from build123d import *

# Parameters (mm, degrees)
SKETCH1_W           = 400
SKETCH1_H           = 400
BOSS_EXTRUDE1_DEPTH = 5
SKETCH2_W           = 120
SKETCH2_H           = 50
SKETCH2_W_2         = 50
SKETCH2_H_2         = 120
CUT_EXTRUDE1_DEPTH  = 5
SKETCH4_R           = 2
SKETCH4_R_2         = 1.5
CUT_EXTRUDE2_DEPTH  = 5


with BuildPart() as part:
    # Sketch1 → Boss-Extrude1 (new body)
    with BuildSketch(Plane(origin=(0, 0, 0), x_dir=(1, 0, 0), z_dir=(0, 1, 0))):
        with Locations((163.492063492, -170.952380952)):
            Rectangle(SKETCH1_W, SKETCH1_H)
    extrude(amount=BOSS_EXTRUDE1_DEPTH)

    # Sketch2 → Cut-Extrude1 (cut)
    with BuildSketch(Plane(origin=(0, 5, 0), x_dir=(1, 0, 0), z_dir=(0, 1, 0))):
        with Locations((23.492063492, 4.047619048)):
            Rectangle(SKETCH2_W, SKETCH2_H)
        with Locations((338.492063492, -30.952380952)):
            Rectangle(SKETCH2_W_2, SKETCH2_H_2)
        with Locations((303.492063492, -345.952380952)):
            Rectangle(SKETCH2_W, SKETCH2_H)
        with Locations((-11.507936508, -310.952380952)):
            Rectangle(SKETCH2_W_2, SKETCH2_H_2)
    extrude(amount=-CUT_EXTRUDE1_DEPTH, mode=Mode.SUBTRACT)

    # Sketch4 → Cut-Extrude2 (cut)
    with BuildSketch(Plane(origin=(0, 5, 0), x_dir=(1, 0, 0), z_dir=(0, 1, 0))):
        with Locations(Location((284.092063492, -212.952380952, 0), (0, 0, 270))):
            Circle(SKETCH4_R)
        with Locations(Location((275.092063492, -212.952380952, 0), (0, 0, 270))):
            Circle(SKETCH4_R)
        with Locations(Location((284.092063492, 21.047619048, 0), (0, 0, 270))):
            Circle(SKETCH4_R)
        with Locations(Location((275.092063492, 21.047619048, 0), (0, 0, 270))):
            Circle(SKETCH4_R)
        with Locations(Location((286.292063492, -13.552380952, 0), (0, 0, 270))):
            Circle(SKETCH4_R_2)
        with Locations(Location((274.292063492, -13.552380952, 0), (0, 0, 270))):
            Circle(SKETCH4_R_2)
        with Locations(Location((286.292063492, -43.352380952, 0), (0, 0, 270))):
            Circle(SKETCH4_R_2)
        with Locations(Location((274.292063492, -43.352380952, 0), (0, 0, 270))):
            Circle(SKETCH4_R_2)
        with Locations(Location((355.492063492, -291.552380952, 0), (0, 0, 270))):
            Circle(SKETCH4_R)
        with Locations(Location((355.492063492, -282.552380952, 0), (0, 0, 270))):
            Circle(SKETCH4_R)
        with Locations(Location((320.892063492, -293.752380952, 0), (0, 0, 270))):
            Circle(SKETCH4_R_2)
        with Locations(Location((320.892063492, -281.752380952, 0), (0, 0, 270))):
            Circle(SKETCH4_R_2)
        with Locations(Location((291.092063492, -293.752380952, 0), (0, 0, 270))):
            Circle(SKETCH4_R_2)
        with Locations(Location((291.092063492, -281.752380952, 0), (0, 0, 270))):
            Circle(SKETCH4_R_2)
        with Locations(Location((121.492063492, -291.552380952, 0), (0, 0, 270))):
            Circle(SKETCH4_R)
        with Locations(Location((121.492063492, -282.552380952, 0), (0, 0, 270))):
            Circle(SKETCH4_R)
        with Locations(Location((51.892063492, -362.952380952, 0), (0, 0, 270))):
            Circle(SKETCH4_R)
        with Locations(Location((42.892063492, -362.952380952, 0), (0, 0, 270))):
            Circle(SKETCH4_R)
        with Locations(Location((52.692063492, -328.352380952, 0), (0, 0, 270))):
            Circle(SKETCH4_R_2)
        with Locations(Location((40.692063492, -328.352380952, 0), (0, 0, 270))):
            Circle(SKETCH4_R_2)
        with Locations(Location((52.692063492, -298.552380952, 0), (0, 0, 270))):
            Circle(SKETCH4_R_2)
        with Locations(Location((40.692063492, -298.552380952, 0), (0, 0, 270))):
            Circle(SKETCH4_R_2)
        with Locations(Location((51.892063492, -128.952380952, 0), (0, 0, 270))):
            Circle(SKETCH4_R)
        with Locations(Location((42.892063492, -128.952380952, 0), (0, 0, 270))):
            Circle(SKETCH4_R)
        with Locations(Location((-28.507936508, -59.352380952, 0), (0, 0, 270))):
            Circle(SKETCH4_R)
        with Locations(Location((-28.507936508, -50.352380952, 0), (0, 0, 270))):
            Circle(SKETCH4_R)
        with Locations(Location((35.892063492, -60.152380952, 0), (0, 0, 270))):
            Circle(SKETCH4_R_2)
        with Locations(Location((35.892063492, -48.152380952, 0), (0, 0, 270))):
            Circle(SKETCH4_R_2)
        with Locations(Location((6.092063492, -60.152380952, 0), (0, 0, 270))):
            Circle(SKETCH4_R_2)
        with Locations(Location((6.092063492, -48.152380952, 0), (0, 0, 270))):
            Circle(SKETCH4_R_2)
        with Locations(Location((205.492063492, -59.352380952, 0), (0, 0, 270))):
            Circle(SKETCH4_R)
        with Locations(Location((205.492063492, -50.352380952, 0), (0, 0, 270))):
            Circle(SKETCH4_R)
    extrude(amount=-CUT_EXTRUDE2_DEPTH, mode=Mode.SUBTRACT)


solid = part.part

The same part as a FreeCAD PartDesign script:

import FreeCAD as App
import Part
import Sketcher

V = App.Vector
Q = App.Units.Quantity


def add_polygon(sketch, points):
    """Adds a closed chain of lines whose ends are joined by coincident constraints."""
    first, n = sketch.GeometryCount, len(points)
    for a, b in zip(points, points[1:] + points[:1]):
        sketch.addGeometry(Part.LineSegment(App.Vector(*a, 0), App.Vector(*b, 0)), False)
    for i in range(n):
        sketch.addConstraint(Sketcher.Constraint("Coincident", first + i, 2, first + (i + 1) % n, 1))

doc = App.newDocument("Part")
body = doc.addObject("PartDesign::Body", "Body")

sketch1 = body.newObject("Sketcher::SketchObject", "Sketch")
sketch1.AttachmentSupport = (doc.getObject("XZ_Plane"), [""])
sketch1.MapMode = "FlatFace"
add_polygon(sketch1, [(-37, -29), (-37, 371), (363, 371), (363, -29)])
sketch1.addConstraint([
    Sketcher.Constraint("Vertical", 0),
    Sketcher.Constraint("Horizontal", 1),
    Sketcher.Constraint("Vertical", 2),
    Sketcher.Constraint("Horizontal", 3),
    Sketcher.Constraint("Equal", 3, 0),
    Sketcher.Constraint("DistanceX", 1, 1, 1, 2, Q("400 mm")),
    Sketcher.Constraint("DistanceY", -1, 1, 0, 2, Q("370.952381 mm")),
    Sketcher.Constraint("DistanceX", 0, 2, -1, 1, Q("36.507937 mm")),
])
pad1 = body.newObject("PartDesign::Pad", "Pad")
pad1.Profile = sketch1
pad1.Length = 5
pad1.Reversed = True

sketch2 = body.newObject("Sketcher::SketchObject", "Sketch001")
sketch2.AttachmentSupport = (doc.getObject("XZ_Plane"), [""])
sketch2.MapMode = "FlatFace"
sketch2.AttachmentOffset = App.Placement(V(0, 0, -5), App.Rotation())
add_polygon(sketch2, [(-37, -29), (-37, 21), (83, 21), (83, -29)])
add_polygon(sketch2, [(313, -29), (313, 91), (363, 91), (363, -29)])
add_polygon(sketch2, [(243, 321), (243, 371), (363, 371), (363, 321)])
add_polygon(sketch2, [(-37, 251), (-37, 371), (13, 371), (13, 251)])
sketch2.addConstraint([
    Sketcher.Constraint("Vertical", 0),
    Sketcher.Constraint("Horizontal", 1),
    Sketcher.Constraint("Vertical", 2),
    Sketcher.Constraint("Horizontal", 3),
    Sketcher.Constraint("Vertical", 4),
    Sketcher.Constraint("Horizontal", 5),
    Sketcher.Constraint("Vertical", 6),
    Sketcher.Constraint("Horizontal", 7),
    Sketcher.Constraint("Vertical", 8),
    Sketcher.Constraint("Horizontal", 9),
    Sketcher.Constraint("Vertical", 10),
    Sketcher.Constraint("Horizontal", 11),
    Sketcher.Constraint("Vertical", 12),
    Sketcher.Constraint("Horizontal", 13),
    Sketcher.Constraint("Vertical", 14),
    Sketcher.Constraint("Horizontal", 15),
    Sketcher.Constraint("Horizontal", 3, 2, 6, 2),
    Sketcher.Constraint("Horizontal", 9, 2, 12, 2),
    Sketcher.Constraint("Vertical", 6, 2, 9, 2),
    Sketcher.Constraint("Vertical", 3, 2, 12, 2),
    Sketcher.Constraint("Equal", 3, 9),
    Sketcher.Constraint("Equal", 7, 13),
    Sketcher.Constraint("Equal", 15, 0),
    Sketcher.Constraint("Equal", 11, 4),
    Sketcher.Constraint("Equal", 2, 8),
    Sketcher.Constraint("Equal", 6, 12),
    Sketcher.Constraint("DistanceX", 1, 1, 1, 2, Q("120 mm")),
    Sketcher.Constraint("DistanceX", 5, 1, 5, 2, Q("50 mm")),
    Sketcher.Constraint("DistanceX", 1, 2, 4, 2, Q("230 mm")),
    Sketcher.Constraint("DistanceY", 4, 2, 8, 2, Q("280 mm")),
    Sketcher.Constraint("DistanceY", -1, 1, 0, 2, Q("20.952381 mm")),
    Sketcher.Constraint("DistanceX", 0, 2, -1, 1, Q("36.507937 mm")),
])
pocket1 = body.newObject("PartDesign::Pocket", "Pocket")
pocket1.Profile = sketch2
pocket1.Length = 5
pocket1.Reversed = True

sketch3 = body.newObject("Sketcher::SketchObject", "Sketch002")
sketch3.AttachmentSupport = (doc.getObject("XZ_Plane"), [""])
sketch3.MapMode = "FlatFace"
sketch3.AttachmentOffset = App.Placement(V(0, 0, -5), App.Rotation())
sketch3.addGeometry([
    Part.Circle(V(284.1, 213, 0), V(0, 0, 1), 2),
    Part.Circle(V(275.1, 213, 0), V(0, 0, 1), 2),
    Part.Circle(V(284.1, -21, 0), V(0, 0, 1), 2),
    Part.Circle(V(275.1, -21, 0), V(0, 0, 1), 2),
    Part.Circle(V(286.3, 13.6, 0), V(0, 0, 1), 1.5),
    Part.Circle(V(274.3, 13.6, 0), V(0, 0, 1), 1.5),
    Part.Circle(V(286.3, 43.4, 0), V(0, 0, 1), 1.5),
    Part.Circle(V(274.3, 43.4, 0), V(0, 0, 1), 1.5),
    Part.Circle(V(355.5, 291.6, 0), V(0, 0, 1), 2),
    Part.Circle(V(355.5, 282.6, 0), V(0, 0, 1), 2),
    Part.Circle(V(320.9, 293.8, 0), V(0, 0, 1), 1.5),
    Part.Circle(V(320.9, 281.8, 0), V(0, 0, 1), 1.5),
    Part.Circle(V(291.1, 293.8, 0), V(0, 0, 1), 1.5),
    Part.Circle(V(291.1, 281.8, 0), V(0, 0, 1), 1.5),
    Part.Circle(V(121.5, 291.6, 0), V(0, 0, 1), 2),
    Part.Circle(V(121.5, 282.6, 0), V(0, 0, 1), 2),
    Part.Circle(V(51.9, 363, 0), V(0, 0, 1), 2),
    Part.Circle(V(42.9, 363, 0), V(0, 0, 1), 2),
    Part.Circle(V(52.7, 328.4, 0), V(0, 0, 1), 1.5),
    Part.Circle(V(40.7, 328.4, 0), V(0, 0, 1), 1.5),
    Part.Circle(V(52.7, 298.6, 0), V(0, 0, 1), 1.5),
    Part.Circle(V(40.7, 298.6, 0), V(0, 0, 1), 1.5),
    Part.Circle(V(51.9, 129, 0), V(0, 0, 1), 2),
    Part.Circle(V(42.9, 129, 0), V(0, 0, 1), 2),
    Part.Circle(V(-28.5, 59.4, 0), V(0, 0, 1), 2),
    Part.Circle(V(-28.5, 50.4, 0), V(0, 0, 1), 2),
    Part.Circle(V(35.9, 60.2, 0), V(0, 0, 1), 1.5),
    Part.Circle(V(35.9, 48.2, 0), V(0, 0, 1), 1.5),
    Part.Circle(V(6.1, 60.2, 0), V(0, 0, 1), 1.5),
    Part.Circle(V(6.1, 48.2, 0), V(0, 0, 1), 1.5),
    Part.Circle(V(205.5, 59.4, 0), V(0, 0, 1), 2),
    Part.Circle(V(205.5, 50.4, 0), V(0, 0, 1), 2),
], False)
sketch3.addConstraint([
    Sketcher.Constraint("Equal", 0, 1),
    Sketcher.Constraint("Equal", 1, 2),
    Sketcher.Constraint("Equal", 2, 3),
    Sketcher.Constraint("Equal", 4, 5),
    Sketcher.Constraint("Equal", 5, 6),
    Sketcher.Constraint("Equal", 6, 7),
    Sketcher.Constraint("Equal", 3, 8),
    Sketcher.Constraint("Equal", 8, 9),
    Sketcher.Constraint("Equal", 7, 10),
    Sketcher.Constraint("Equal", 10, 11),
    Sketcher.Constraint("Equal", 11, 12),
    Sketcher.Constraint("Equal", 12, 13),
    Sketcher.Constraint("Equal", 9, 14),
    Sketcher.Constraint("Equal", 14, 15),
    Sketcher.Constraint("Equal", 15, 16),
    Sketcher.Constraint("Equal", 16, 17),
    Sketcher.Constraint("Equal", 13, 18),
    Sketcher.Constraint("Equal", 18, 19),
    Sketcher.Constraint("Equal", 19, 20),
    Sketcher.Constraint("Equal", 20, 21),
    Sketcher.Constraint("Equal", 17, 22),
    Sketcher.Constraint("Equal", 22, 23),
    Sketcher.Constraint("Equal", 23, 24),
    Sketcher.Constraint("Equal", 24, 25),
    Sketcher.Constraint("Equal", 21, 26),
    Sketcher.Constraint("Equal", 26, 27),
    Sketcher.Constraint("Equal", 27, 28),
    Sketcher.Constraint("Equal", 28, 29),
    Sketcher.Constraint("Equal", 25, 30),
    Sketcher.Constraint("Equal", 30, 31),
    Sketcher.Constraint("Horizontal", 0, 3, 1, 3),
    Sketcher.Constraint("Horizontal", 2, 3, 3, 3),
    Sketcher.Constraint("Horizontal", 4, 3, 5, 3),
    Sketcher.Constraint("Horizontal", 6, 3, 7, 3),
    Sketcher.Constraint("Horizontal", 10, 3, 12, 3),
    Sketcher.Constraint("Horizontal", 11, 3, 13, 3),
    Sketcher.Constraint("Horizontal", 8, 3, 14, 3),
    Sketcher.Constraint("Horizontal", 9, 3, 15, 3),
    Sketcher.Constraint("Horizontal", 16, 3, 17, 3),
    Sketcher.Constraint("Horizontal", 18, 3, 19, 3),
    Sketcher.Constraint("Horizontal", 20, 3, 21, 3),
    Sketcher.Constraint("Horizontal", 22, 3, 23, 3),
    Sketcher.Constraint("Horizontal", 26, 3, 28, 3),
    Sketcher.Constraint("Horizontal", 27, 3, 29, 3),
    Sketcher.Constraint("Horizontal", 24, 3, 30, 3),
    Sketcher.Constraint("Horizontal", 25, 3, 31, 3),
    Sketcher.Constraint("Vertical", 0, 3, 2, 3),
    Sketcher.Constraint("Vertical", 1, 3, 3, 3),
    Sketcher.Constraint("Vertical", 4, 3, 6, 3),
    Sketcher.Constraint("Vertical", 5, 3, 7, 3),
    Sketcher.Constraint("Vertical", 8, 3, 9, 3),
    Sketcher.Constraint("Vertical", 10, 3, 11, 3),
    Sketcher.Constraint("Vertical", 12, 3, 13, 3),
    Sketcher.Constraint("Vertical", 14, 3, 15, 3),
    Sketcher.Constraint("Vertical", 18, 3, 20, 3),
    Sketcher.Constraint("Vertical", 19, 3, 21, 3),
    Sketcher.Constraint("Vertical", 16, 3, 22, 3),
    Sketcher.Constraint("Vertical", 17, 3, 23, 3),
    Sketcher.Constraint("Vertical", 24, 3, 25, 3),
    Sketcher.Constraint("Vertical", 26, 3, 27, 3),
    Sketcher.Constraint("Vertical", 28, 3, 29, 3),
    Sketcher.Constraint("Vertical", 30, 3, 31, 3),
    Sketcher.Constraint("Diameter", 0, Q("4 mm")),
    Sketcher.Constraint("Diameter", 4, Q("3 mm")),
    Sketcher.Constraint("DistanceX", 1, 3, 0, 3, Q("9 mm")),
    Sketcher.Constraint("DistanceY", 2, 3, 0, 3, Q("234 mm")),
    Sketcher.Constraint("DistanceX", 5, 3, 4, 3, Q("12 mm")),
    Sketcher.Constraint("DistanceY", 4, 3, 8, 3, Q("278 mm")),
    Sketcher.Constraint("DistanceY", 9, 3, 8, 3, Q("9 mm")),
    Sketcher.Constraint("DistanceY", 11, 3, 10, 3, Q("12 mm")),
    Sketcher.Constraint("DistanceX", 0, 3, 12, 3, Q("7 mm")),
    Sketcher.Constraint("DistanceY", 1, 3, 16, 3, Q("150 mm")),
    Sketcher.Constraint("DistanceX", 17, 3, 16, 3, Q("9 mm")),
    Sketcher.Constraint("DistanceX", 19, 3, 18, 3, Q("12 mm")),
    Sketcher.Constraint("DistanceY", 14, 3, 20, 3, Q("7 mm")),
    Sketcher.Constraint("DistanceX", 24, 3, 15, 3, Q("150 mm")),
    Sketcher.Constraint("DistanceY", 25, 3, 24, 3, Q("9 mm")),
    Sketcher.Constraint("DistanceX", 26, 3, 23, 3, Q("7 mm")),
    Sketcher.Constraint("DistanceY", 27, 3, 26, 3, Q("12 mm")),
    Sketcher.Constraint("DistanceY", 7, 3, 30, 3, Q("16 mm")),
    Sketcher.Constraint("DistanceX", 2, 3, 4, 3, Q("2.2 mm")),
    Sketcher.Constraint("DistanceY", 2, 3, 4, 3, Q("34.6 mm")),
    Sketcher.Constraint("DistanceY", 4, 3, 6, 3, Q("29.8 mm")),
    Sketcher.Constraint("DistanceX", 0, 3, 8, 3, Q("71.4 mm")),
    Sketcher.Constraint("DistanceX", 10, 3, 8, 3, Q("34.6 mm")),
    Sketcher.Constraint("DistanceY", 8, 3, 10, 3, Q("2.2 mm")),
    Sketcher.Constraint("DistanceX", 14, 3, 12, 3, Q("169.6 mm")),
    Sketcher.Constraint("DistanceX", 16, 3, 14, 3, Q("69.6 mm")),
    Sketcher.Constraint("DistanceX", 16, 3, 18, 3, Q("0.8 mm")),
    Sketcher.Constraint("DistanceY", 18, 3, 16, 3, Q("34.6 mm")),
    Sketcher.Constraint("DistanceY", 22, 3, 15, 3, Q("153.6 mm")),
    Sketcher.Constraint("DistanceY", 24, 3, 26, 3, Q("0.8 mm")),
    Sketcher.Constraint("DistanceX", 28, 3, 26, 3, Q("29.8 mm")),
    Sketcher.Constraint("DistanceX", 30, 3, 7, 3, Q("68.8 mm")),
    Sketcher.Constraint("DistanceY", -1, 1, 0, 3, Q("212.952381 mm")),
    Sketcher.Constraint("DistanceX", -1, 1, 0, 3, Q("284.092063 mm")),
])
pocket2 = body.newObject("PartDesign::Pocket", "Pocket001")
pocket2.Profile = sketch3
pocket2.Length = 5
pocket2.Reversed = True

doc.recompute()
